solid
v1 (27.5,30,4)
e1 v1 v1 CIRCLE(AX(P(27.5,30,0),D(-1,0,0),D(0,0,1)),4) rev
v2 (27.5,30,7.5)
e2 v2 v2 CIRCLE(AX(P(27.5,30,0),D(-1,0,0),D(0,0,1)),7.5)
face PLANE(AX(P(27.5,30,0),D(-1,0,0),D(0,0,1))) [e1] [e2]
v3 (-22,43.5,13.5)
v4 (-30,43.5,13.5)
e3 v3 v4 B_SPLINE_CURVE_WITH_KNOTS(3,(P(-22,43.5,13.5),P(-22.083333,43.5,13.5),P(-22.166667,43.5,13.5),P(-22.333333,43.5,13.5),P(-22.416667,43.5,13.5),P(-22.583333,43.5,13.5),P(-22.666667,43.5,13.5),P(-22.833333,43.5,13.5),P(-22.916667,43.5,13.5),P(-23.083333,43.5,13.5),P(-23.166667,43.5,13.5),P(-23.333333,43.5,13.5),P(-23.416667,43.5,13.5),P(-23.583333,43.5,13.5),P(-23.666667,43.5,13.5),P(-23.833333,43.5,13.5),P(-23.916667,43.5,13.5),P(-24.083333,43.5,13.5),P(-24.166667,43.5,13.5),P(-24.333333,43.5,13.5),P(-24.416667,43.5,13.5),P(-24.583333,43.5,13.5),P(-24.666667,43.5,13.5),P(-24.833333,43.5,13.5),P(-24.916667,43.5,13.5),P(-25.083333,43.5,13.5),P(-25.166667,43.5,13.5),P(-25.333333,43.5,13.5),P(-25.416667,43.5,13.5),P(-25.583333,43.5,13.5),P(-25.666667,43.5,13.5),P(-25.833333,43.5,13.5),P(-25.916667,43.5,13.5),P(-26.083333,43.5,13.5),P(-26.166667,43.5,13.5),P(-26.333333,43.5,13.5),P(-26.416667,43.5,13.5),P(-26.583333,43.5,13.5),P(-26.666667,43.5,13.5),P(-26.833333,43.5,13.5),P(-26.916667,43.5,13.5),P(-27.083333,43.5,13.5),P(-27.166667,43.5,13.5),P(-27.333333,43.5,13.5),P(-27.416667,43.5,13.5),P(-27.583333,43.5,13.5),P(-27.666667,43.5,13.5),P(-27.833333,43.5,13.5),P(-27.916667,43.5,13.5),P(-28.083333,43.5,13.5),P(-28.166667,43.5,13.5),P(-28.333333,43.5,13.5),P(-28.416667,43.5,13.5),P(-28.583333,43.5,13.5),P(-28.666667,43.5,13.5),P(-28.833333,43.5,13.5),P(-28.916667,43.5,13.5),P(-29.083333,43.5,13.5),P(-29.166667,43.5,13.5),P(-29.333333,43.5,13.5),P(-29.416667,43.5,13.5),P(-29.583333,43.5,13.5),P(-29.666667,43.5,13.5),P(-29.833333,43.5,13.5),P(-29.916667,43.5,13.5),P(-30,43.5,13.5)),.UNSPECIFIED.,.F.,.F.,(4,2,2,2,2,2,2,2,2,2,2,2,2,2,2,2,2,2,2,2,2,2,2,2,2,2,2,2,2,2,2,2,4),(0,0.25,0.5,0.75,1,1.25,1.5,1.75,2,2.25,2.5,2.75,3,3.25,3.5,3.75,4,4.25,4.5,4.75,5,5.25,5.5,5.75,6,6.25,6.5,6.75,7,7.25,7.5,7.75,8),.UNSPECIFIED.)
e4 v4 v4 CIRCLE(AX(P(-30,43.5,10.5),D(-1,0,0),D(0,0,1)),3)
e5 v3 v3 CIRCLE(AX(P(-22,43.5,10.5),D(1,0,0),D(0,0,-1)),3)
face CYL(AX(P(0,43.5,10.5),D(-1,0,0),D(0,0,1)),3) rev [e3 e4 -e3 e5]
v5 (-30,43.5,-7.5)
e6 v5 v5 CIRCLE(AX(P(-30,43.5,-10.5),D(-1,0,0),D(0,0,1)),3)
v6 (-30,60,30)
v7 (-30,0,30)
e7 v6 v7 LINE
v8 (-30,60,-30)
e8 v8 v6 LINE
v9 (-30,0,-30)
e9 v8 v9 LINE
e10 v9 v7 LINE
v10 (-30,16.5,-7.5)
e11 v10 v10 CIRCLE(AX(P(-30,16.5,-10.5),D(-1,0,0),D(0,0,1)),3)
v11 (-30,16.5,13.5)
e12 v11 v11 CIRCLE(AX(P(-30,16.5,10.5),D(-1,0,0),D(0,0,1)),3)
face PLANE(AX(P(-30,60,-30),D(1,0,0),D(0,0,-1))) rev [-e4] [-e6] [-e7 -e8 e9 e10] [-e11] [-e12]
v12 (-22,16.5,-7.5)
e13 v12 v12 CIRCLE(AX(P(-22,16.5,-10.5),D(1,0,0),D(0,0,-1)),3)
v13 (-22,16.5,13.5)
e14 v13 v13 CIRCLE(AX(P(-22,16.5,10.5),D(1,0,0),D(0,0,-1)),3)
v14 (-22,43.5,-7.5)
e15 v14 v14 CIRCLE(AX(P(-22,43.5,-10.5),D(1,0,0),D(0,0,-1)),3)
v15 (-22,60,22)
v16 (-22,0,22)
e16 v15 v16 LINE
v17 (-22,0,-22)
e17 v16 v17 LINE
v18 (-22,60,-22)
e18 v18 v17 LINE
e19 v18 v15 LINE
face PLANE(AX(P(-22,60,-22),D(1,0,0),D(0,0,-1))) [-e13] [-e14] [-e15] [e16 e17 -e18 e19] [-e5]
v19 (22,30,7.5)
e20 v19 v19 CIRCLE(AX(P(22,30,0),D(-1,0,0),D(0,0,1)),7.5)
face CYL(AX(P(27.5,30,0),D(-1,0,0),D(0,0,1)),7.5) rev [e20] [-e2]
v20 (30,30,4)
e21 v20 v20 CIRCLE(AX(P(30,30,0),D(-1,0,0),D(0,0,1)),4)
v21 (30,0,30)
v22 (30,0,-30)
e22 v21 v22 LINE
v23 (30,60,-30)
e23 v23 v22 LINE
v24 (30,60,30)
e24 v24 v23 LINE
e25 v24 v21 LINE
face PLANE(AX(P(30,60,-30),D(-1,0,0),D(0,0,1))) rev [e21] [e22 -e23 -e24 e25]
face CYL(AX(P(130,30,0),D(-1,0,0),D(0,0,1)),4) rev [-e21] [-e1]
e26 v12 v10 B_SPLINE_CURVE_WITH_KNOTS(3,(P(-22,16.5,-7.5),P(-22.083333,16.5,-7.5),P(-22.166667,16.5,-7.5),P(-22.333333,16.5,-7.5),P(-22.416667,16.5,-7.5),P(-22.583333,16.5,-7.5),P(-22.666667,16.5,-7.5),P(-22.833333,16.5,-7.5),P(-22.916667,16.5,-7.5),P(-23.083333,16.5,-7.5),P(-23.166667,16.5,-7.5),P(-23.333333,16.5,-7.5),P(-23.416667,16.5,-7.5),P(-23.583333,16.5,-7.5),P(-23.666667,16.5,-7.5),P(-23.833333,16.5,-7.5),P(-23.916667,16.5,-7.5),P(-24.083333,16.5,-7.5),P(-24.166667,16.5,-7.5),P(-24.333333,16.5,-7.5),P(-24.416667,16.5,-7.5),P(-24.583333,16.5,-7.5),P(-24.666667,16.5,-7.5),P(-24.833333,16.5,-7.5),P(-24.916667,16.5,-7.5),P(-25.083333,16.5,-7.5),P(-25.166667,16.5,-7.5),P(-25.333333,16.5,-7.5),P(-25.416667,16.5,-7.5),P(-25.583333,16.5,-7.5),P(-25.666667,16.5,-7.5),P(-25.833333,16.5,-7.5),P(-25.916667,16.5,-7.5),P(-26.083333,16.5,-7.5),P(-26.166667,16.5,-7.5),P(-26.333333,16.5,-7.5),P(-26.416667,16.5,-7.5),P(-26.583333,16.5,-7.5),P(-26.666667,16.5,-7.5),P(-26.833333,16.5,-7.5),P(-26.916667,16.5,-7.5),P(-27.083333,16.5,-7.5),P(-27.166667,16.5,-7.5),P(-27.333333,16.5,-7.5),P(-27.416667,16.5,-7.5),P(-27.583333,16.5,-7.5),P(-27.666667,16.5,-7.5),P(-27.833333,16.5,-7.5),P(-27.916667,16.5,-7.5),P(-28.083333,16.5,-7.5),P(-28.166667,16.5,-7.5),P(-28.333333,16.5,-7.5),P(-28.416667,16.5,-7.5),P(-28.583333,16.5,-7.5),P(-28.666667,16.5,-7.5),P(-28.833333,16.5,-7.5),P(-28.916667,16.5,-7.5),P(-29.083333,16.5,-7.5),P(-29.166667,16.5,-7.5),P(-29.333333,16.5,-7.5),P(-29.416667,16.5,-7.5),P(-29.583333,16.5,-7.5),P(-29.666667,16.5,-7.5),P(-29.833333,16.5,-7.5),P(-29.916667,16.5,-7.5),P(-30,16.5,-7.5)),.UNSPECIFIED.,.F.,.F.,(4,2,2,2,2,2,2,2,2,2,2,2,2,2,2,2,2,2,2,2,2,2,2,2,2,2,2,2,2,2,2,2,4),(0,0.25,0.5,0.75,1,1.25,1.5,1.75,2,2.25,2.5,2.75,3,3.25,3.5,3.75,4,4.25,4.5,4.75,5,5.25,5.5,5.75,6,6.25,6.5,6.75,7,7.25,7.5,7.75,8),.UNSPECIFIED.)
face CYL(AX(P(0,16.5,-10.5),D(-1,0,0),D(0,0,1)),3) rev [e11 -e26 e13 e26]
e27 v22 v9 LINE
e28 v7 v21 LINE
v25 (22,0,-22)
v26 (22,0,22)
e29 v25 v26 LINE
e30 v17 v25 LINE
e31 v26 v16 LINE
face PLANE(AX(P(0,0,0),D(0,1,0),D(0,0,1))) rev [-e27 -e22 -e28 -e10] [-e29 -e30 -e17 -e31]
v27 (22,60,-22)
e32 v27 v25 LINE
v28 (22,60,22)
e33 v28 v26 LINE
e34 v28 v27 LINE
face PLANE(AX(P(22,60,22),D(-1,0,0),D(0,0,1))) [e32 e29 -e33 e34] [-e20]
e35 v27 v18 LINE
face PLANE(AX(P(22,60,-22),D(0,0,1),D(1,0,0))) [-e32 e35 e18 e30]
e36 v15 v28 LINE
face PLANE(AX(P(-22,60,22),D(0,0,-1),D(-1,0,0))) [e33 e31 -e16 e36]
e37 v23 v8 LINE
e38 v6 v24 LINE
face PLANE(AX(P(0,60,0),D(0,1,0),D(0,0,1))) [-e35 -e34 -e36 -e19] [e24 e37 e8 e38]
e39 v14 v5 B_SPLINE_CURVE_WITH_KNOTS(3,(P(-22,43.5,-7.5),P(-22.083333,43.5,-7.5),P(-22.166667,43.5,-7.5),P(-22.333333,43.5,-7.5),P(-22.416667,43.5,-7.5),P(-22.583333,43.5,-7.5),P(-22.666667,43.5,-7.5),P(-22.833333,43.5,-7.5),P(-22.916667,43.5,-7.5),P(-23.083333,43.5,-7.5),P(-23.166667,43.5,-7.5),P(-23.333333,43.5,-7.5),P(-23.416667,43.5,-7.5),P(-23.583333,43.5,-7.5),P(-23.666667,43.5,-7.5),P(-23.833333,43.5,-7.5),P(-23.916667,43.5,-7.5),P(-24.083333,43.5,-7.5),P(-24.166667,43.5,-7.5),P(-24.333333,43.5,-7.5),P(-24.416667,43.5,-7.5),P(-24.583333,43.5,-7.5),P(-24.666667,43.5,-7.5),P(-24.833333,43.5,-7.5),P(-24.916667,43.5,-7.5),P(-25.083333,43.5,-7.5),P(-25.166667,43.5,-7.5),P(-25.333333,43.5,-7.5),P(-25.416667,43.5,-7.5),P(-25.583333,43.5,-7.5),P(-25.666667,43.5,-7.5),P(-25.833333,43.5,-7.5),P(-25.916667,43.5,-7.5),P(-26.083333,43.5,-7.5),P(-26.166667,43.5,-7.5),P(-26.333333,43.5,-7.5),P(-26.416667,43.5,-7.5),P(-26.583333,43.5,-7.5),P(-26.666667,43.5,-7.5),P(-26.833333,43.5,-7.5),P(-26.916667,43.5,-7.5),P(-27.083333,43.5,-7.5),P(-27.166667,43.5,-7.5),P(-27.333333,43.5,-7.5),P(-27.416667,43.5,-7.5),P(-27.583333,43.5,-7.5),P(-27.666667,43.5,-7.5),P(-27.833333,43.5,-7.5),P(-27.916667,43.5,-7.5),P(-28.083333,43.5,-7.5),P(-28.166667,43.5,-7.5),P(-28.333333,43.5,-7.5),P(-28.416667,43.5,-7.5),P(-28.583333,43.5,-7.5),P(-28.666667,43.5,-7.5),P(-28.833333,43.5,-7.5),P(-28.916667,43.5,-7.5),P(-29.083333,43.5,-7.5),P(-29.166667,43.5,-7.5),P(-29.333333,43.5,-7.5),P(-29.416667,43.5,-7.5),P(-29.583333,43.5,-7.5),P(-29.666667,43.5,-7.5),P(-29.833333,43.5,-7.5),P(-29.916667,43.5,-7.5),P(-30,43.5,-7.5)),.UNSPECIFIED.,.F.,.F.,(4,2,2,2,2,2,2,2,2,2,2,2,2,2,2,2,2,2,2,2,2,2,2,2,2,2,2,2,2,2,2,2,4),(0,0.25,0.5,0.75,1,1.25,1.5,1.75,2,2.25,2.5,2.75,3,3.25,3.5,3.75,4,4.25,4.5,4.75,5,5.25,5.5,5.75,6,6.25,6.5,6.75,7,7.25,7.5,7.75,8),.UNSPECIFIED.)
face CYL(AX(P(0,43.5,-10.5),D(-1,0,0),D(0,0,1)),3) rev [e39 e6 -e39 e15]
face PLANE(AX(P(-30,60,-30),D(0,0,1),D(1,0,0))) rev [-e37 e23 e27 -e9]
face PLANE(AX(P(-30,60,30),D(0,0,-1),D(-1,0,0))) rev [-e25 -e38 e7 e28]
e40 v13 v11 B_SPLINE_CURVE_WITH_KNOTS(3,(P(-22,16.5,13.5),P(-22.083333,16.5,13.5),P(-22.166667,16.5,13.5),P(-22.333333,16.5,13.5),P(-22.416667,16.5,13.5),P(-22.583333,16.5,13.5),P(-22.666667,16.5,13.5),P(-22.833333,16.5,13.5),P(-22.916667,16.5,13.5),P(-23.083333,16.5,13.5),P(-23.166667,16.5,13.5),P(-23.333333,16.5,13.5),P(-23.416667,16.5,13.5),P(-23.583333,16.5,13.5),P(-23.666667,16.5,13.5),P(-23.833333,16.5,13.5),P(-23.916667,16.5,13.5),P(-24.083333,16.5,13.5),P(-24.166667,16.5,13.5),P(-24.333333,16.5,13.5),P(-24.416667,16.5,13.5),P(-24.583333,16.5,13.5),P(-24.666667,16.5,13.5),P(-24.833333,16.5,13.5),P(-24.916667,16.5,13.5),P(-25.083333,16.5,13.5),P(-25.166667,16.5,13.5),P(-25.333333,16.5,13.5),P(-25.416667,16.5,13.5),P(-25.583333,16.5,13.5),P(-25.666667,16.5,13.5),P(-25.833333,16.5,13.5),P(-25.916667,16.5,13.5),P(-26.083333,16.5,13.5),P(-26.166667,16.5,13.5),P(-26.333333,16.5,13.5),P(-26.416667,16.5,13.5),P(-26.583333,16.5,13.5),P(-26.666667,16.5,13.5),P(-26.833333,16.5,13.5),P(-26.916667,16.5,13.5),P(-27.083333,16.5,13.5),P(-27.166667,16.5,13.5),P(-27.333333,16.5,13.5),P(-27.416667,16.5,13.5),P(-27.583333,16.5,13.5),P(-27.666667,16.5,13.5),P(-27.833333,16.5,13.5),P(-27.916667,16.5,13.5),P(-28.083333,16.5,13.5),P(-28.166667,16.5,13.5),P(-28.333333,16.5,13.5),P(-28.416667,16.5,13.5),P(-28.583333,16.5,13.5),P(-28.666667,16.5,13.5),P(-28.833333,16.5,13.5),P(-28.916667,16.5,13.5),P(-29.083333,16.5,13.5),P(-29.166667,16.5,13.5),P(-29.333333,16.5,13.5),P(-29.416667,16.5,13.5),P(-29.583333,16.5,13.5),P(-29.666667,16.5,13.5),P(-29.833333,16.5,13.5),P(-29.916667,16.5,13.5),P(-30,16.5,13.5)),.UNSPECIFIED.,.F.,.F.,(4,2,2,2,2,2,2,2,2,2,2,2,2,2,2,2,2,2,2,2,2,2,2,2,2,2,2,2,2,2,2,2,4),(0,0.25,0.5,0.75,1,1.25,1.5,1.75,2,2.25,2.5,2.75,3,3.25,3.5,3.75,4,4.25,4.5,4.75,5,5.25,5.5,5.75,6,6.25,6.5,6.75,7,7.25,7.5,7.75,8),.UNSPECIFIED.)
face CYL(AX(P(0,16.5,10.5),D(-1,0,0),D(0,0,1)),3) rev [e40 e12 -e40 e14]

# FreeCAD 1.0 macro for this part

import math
import FreeCAD as App
import Part
import Sketcher
Q = App.Units.Quantity

doc = App.newDocument("Part")
params = doc.addObject("Spreadsheet::Sheet", "Params")
for row, (alias, value) in enumerate([
    ("sketch1_width", "60 mm"),
    ("pad1_length", "60 mm"),
    ("sketch2_width", "44 mm"),
    ("pocket1_length", "108 mm"),
    ("sketch3_diameter", "8 mm"),
    ("pocket2_length", "108 mm"),
    ("sketch4_radius", "3 mm"),
    ("pocket3_length", "30 mm"),
    ("sketch5_diameter", "15 mm"),
    ("pocket4_length", "5.5 mm"),
], start=1):
    params.set(f"A{row}", alias)
    params.set(f"B{row}", "=" + value)
    params.setAlias(f"B{row}", alias)

body = doc.addObject("PartDesign::Body", "Body")

sketch1 = body.newObject("Sketcher::SketchObject", "Sketch")
sketch1.AttachmentSupport = (doc.getObject("XZ_Plane"), [""])
sketch1.MapMode = "FlatFace"
sketch1.addGeometry([
    Part.LineSegment(App.Vector(-30, -30, 0), App.Vector(-30, 30, 0)),
    Part.LineSegment(App.Vector(-30, 30, 0), App.Vector(30, 30, 0)),
    Part.LineSegment(App.Vector(30, 30, 0), App.Vector(30, -30, 0)),
    Part.LineSegment(App.Vector(30, -30, 0), App.Vector(-30, -30, 0)),
], False)
sketch1.addConstraint([
    Sketcher.Constraint("Coincident", 0, 2, 1, 1),
    Sketcher.Constraint("Coincident", 1, 2, 2, 1),
    Sketcher.Constraint("Coincident", 2, 2, 3, 1),
    Sketcher.Constraint("Coincident", 3, 2, 0, 1),
    Sketcher.Constraint("Vertical", 0),
    Sketcher.Constraint("Horizontal", 1),
    Sketcher.Constraint("Vertical", 2),
    Sketcher.Constraint("Horizontal", 3),
    Sketcher.Constraint("Symmetric", 0, 2, 2, 2, -1, 1),
    Sketcher.Constraint("Equal", 3, 0),
    Sketcher.Constraint("DistanceX", 1, 1, 1, 2, Q("60 mm")),
])
sketch1.setExpression("Constraints[10]", "Params.sketch1_width")
pad1 = body.newObject("PartDesign::Pad", "Pad")
pad1.Profile = sketch1
pad1.setExpression("Length", "Params.pad1_length")
pad1.Reversed = True

sketch2 = body.newObject("Sketcher::SketchObject", "Sketch001")
sketch2.AttachmentSupport = (doc.getObject("XZ_Plane"), [""])
sketch2.MapMode = "FlatFace"
sketch2.AttachmentOffset = App.Placement(App.Vector(0, 0, -60), App.Rotation())
sketch2.addGeometry([
    Part.LineSegment(App.Vector(-22, -22, 0), App.Vector(-22, 22, 0)),
    Part.LineSegment(App.Vector(-22, 22, 0), App.Vector(22, 22, 0)),
    Part.LineSegment(App.Vector(22, 22, 0), App.Vector(22, -22, 0)),
    Part.LineSegment(App.Vector(22, -22, 0), App.Vector(-22, -22, 0)),
], False)
sketch2.addConstraint([
    Sketcher.Constraint("Coincident", 0, 2, 1, 1),
    Sketcher.Constraint("Coincident", 1, 2, 2, 1),
    Sketcher.Constraint("Coincident", 2, 2, 3, 1),
    Sketcher.Constraint("Coincident", 3, 2, 0, 1),
    Sketcher.Constraint("Vertical", 0),
    Sketcher.Constraint("Horizontal", 1),
    Sketcher.Constraint("Vertical", 2),
    Sketcher.Constraint("Horizontal", 3),
    Sketcher.Constraint("Symmetric", 0, 2, 2, 2, -1, 1),
    Sketcher.Constraint("Equal", 3, 0),
    Sketcher.Constraint("DistanceX", 1, 1, 1, 2, Q("44 mm")),
])
sketch2.setExpression("Constraints[10]", "Params.sketch2_width")
pocket1 = body.newObject("PartDesign::Pocket", "Pocket")
pocket1.Profile = sketch2
pocket1.setExpression("Length", "Params.pocket1_length")
pocket1.Reversed = True

sketch3 = body.newObject("Sketcher::SketchObject", "Sketch002")
sketch3.AttachmentSupport = (doc.getObject("YZ_Plane"), [""])
sketch3.MapMode = "FlatFace"
sketch3.AttachmentOffset = App.Placement(App.Vector(0, 0, 22), App.Rotation())
sketch3.addGeometry(Part.Circle(App.Vector(30, 0, 0), App.Vector(0, 0, 1), 4), False)
sketch3.addConstraint([
    Sketcher.Constraint("PointOnObject", 0, 3, -1),
    Sketcher.Constraint("Diameter", 0, Q("8 mm")),
    Sketcher.Constraint("DistanceX", -1, 1, 0, 3, Q("30 mm")),
])
sketch3.setExpression("Constraints[1]", "Params.sketch3_diameter")
pocket2 = body.newObject("PartDesign::Pocket", "Pocket001")
pocket2.Profile = sketch3
pocket2.setExpression("Length", "Params.pocket2_length")
pocket2.Reversed = True

sketch4 = body.newObject("Sketcher::SketchObject", "Sketch003")
sketch4.AttachmentSupport = (doc.getObject("YZ_Plane"), [""])
sketch4.MapMode = "FlatFace"
sketch4.AttachmentOffset = App.Placement(App.Vector(0, 0, -30), App.Rotation())
sketch4.addGeometry([
    Part.ArcOfCircle(Part.Circle(App.Vector(43.5, -10.5, 0), App.Vector(0, 0, 1), 3), math.radians(180), math.radians(450)),
    Part.ArcOfCircle(Part.Circle(App.Vector(43.5, -10.5, 0), App.Vector(0, 0, 1), 3), math.radians(90), math.radians(180)),
    Part.ArcOfCircle(Part.Circle(App.Vector(43.5, 10.5, 0), App.Vector(0, 0, 1), 3), math.radians(-90), math.radians(90)),
    Part.ArcOfCircle(Part.Circle(App.Vector(43.5, 10.5, 0), App.Vector(0, 0, 1), 3), math.radians(180), math.radians(270)),
    Part.ArcOfCircle(Part.Circle(App.Vector(43.5, 10.5, 0), App.Vector(0, 0, 1), 3), math.radians(90), math.radians(180)),
    Part.ArcOfCircle(Part.Circle(App.Vector(16.5, 10.5, 0), App.Vector(0, 0, 1), 3), math.radians(0), math.radians(90)),
    Part.ArcOfCircle(Part.Circle(App.Vector(16.5, 10.5, 0), App.Vector(0, 0, 1), 3), math.radians(-90), math.radians(0)),
    Part.ArcOfCircle(Part.Circle(App.Vector(16.5, 10.5, 0), App.Vector(0, 0, 1), 3), math.radians(90), math.radians(270)),
    Part.ArcOfCircle(Part.Circle(App.Vector(16.5, -10.5, 0), App.Vector(0, 0, 1), 3), math.radians(0), math.radians(90)),
    Part.ArcOfCircle(Part.Circle(App.Vector(16.5, -10.5, 0), App.Vector(0, 0, 1), 3), math.radians(90), math.radians(360)),
], False)
sketch4.addConstraint([
    Sketcher.Constraint("Tangent", 0, 1, 1, 2),
    Sketcher.Constraint("Coincident", 1, 1, 0, 2),
    Sketcher.Constraint("Tangent", 2, 1, 3, 2),
    Sketcher.Constraint("Tangent", 3, 1, 4, 2),
    Sketcher.Constraint("Tangent", 4, 1, 2, 2),
    Sketcher.Constraint("Tangent", 5, 1, 6, 2),
    Sketcher.Constraint("Tangent", 6, 1, 7, 2),
    Sketcher.Constraint("Tangent", 7, 1, 5, 2),
    Sketcher.Constraint("Tangent", 8, 1, 9, 2),
    Sketcher.Constraint("Coincident", 9, 1, 8, 2),
    Sketcher.Constraint("Equal", 1, 2),
    Sketcher.Constraint("Equal", 4, 5),
    Sketcher.Constraint("Equal", 7, 8),
    Sketcher.Constraint("Symmetric", 0, 3, 2, 3, -1),
    Sketcher.Constraint("Symmetric", 5, 3, 8, 3, -1),
    Sketcher.Constraint("Horizontal", 4, 3, 5, 3),
    Sketcher.Constraint("Horizontal", 9, 3, 0, 1),
    Sketcher.Constraint("Horizontal", 7, 3, 3, 1),
    Sketcher.Constraint("Horizontal", 3, 1, 5, 1),
    Sketcher.Constraint("Horizontal", 0, 1, 8, 1),
    Sketcher.Constraint("Vertical", 4, 3, 1, 1),
    Sketcher.Constraint("Vertical", 1, 1, 2, 1),
    Sketcher.Constraint("Vertical", 2, 1, 4, 1),
    Sketcher.Constraint("Vertical", 9, 3, 6, 1),
    Sketcher.Constraint("Vertical", 6, 1, 7, 1),
    Sketcher.Constraint("Vertical", 7, 1, 9, 1),
    Sketcher.Constraint("Radius", 0, Q("3 mm")),
    Sketcher.Constraint("DistanceY", 1, 3, 2, 3, Q("21 mm")),
    Sketcher.Constraint("DistanceX", 5, 3, 3, 3, Q("27 mm")),
    Sketcher.Constraint("DistanceX", -1, 1, 0, 3, Q("43.5 mm")),
])
sketch4.setExpression("Constraints[26]", "Params.sketch4_radius")
pocket3 = body.newObject("PartDesign::Pocket", "Pocket002")
pocket3.Profile = sketch4
pocket3.setExpression("Length", "Params.pocket3_length")
pocket3.Reversed = True

sketch5 = body.newObject("Sketcher::SketchObject", "Sketch004")
sketch5.AttachmentSupport = (doc.getObject("YZ_Plane"), [""])
sketch5.MapMode = "FlatFace"
sketch5.AttachmentOffset = App.Placement(App.Vector(0, 0, 22), App.Rotation())
sketch5.addGeometry(Part.Circle(App.Vector(30, 0, 0), App.Vector(0, 0, 1), 8), False)
sketch5.addConstraint([
    Sketcher.Constraint("PointOnObject", 0, 3, -1),
    Sketcher.Constraint("Diameter", 0, Q("15 mm")),
    Sketcher.Constraint("DistanceX", -1, 1, 0, 3, Q("30 mm")),
])
sketch5.setExpression("Constraints[1]", "Params.sketch5_diameter")
pocket4 = body.newObject("PartDesign::Pocket", "Pocket003")
pocket4.Profile = sketch5
pocket4.setExpression("Length", "Params.pocket4_length")
pocket4.Reversed = True

doc.recompute()
